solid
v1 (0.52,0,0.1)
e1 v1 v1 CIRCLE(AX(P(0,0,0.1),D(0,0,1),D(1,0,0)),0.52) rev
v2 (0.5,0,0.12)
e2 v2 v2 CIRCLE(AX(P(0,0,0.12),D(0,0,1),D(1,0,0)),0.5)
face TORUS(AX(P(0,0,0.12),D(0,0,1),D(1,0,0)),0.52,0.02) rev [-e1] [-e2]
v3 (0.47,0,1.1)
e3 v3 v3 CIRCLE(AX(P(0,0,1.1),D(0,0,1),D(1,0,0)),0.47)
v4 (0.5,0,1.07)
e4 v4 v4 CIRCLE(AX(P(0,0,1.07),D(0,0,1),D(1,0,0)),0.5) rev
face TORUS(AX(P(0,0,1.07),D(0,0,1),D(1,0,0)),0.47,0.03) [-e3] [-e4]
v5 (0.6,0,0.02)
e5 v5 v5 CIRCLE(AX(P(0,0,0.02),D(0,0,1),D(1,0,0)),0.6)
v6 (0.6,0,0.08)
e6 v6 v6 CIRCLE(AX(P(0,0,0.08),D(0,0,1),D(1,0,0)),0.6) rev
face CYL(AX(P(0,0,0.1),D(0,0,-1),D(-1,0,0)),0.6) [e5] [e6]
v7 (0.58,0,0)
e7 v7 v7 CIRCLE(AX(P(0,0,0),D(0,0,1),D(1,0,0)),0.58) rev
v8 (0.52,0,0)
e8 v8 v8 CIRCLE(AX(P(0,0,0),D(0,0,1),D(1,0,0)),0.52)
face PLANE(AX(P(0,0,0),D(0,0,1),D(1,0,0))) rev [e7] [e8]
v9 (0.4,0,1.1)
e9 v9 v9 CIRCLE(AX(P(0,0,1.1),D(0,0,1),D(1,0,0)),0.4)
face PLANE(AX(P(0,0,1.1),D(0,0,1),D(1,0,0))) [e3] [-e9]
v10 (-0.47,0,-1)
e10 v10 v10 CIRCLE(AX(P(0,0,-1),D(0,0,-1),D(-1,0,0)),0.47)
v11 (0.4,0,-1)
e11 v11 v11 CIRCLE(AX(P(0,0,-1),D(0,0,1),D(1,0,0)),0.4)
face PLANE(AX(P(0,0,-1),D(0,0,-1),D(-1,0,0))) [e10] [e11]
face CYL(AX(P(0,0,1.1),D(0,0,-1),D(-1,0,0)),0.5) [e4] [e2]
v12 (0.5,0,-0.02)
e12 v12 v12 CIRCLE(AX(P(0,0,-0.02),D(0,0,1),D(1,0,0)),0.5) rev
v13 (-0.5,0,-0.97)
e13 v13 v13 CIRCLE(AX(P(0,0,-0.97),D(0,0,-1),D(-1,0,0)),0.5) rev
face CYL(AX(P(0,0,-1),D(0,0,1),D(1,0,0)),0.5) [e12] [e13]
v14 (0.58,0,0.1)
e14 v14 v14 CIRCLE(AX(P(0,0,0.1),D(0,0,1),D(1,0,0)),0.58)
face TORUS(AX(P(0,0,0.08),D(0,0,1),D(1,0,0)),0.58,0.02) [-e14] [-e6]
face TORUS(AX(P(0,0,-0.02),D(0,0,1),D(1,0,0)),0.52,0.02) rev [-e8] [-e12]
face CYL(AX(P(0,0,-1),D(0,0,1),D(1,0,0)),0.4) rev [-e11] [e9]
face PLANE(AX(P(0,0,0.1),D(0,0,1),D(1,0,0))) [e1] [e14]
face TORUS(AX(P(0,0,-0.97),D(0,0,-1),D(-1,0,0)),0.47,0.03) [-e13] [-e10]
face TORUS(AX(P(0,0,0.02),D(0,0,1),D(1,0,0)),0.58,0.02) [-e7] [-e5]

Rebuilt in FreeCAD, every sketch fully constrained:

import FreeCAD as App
import Part
import Sketcher


def edges_at(feature, points):
    """Names of the edges that pass closest to the given points."""
    edges = feature.Shape.Edges
    near = lambda p: min(range(len(edges)), key=lambda i: edges[i].distToShape(Part.Vertex(*p))[0])
    return sorted({f"Edge{near(p) + 1}" for p in points})

doc = App.newDocument("Part")
body = doc.addObject("PartDesign::Body", "Body")

sketch1 = body.newObject("Sketcher::SketchObject", "Sketch")
sketch1.AttachmentSupport = (doc.getObject("XY_Plane"), [""])
sketch1.MapMode = "FlatFace"
sketch1.addGeometry(Part.Circle(App.Vector(0, 0, 0), App.Vector(0, 0, 1), 0.6), False)
sketch1.addConstraint([
    Sketcher.Constraint("Coincident", 0, 3, -1, 1),
    Sketcher.Constraint("Diameter", 0, 1.2),
])
pad1 = body.newObject("PartDesign::Pad", "Pad")
pad1.Profile = sketch1
pad1.Length = 0.1

sketch2 = body.newObject("Sketcher::SketchObject", "Sketch001")
sketch2.AttachmentSupport = (doc.getObject("XY_Plane"), [""])
sketch2.MapMode = "FlatFace"
sketch2.AttachmentOffset = App.Placement(App.Vector(0, 0, 0.1), App.Rotation())
sketch2.addGeometry(Part.Circle(App.Vector(0, 0, 0), App.Vector(0, 0, 1), 0.5), False)
sketch2.addConstraint([
    Sketcher.Constraint("Coincident", 0, 3, -1, 1),
    Sketcher.Constraint("Diameter", 0, 1.0),
])
pad2 = body.newObject("PartDesign::Pad", "Pad001")
pad2.Profile = sketch2
pad2.Length = 1

sketch3 = body.newObject("Sketcher::SketchObject", "Sketch002")
sketch3.AttachmentSupport = (doc.getObject("XY_Plane"), [""])
sketch3.MapMode = "FlatFace"
sketch3.AttachmentOffset = App.Placement(App.Vector(0, 0, -1), App.Rotation())
sketch3.addGeometry(Part.Circle(App.Vector(0, 0, 0), App.Vector(0, 0, 1), 0.5), False)
sketch3.addConstraint([
    Sketcher.Constraint("Coincident", 0, 3, -1, 1),
    Sketcher.Constraint("Diameter", 0, 1.0),
])
pad3 = body.newObject("PartDesign::Pad", "Pad002")
pad3.Profile = sketch3
pad3.Length = 1
doc.recompute()

fillet = body.newObject("PartDesign::Fillet", "Fillet")
fillet.Base = (pad3, edges_at(pad3, [(-0.6, 0, 0)]))
fillet.Radius = 0.02
doc.recompute()

fillet2 = body.newObject("PartDesign::Fillet", "Fillet001")
fillet2.Base = (fillet, edges_at(fillet, [(-0.6, 0, 0.1)]))
fillet2.Radius = 0.02
doc.recompute()

fillet3 = body.newObject("PartDesign::Fillet", "Fillet002")
fillet3.Base = (fillet2, edges_at(fillet2, [(-0.5, 0, 0.1)]))
fillet3.Radius = 0.02
doc.recompute()

fillet4 = body.newObject("PartDesign::Fillet", "Fillet003")
fillet4.Base = (fillet3, edges_at(fillet3, [(-0.5, 0, 0)]))
fillet4.Radius = 0.02
doc.recompute()

fillet5 = body.newObject("PartDesign::Fillet", "Fillet004")
fillet5.Base = (fillet4, edges_at(fillet4, [(-0.5, 0, 1.1)]))
fillet5.Radius = 0.03
doc.recompute()

fillet6 = body.newObject("PartDesign::Fillet", "Fillet005")
fillet6.Base = (fillet5, edges_at(fillet5, [(-0.5, 0, -1)]))
fillet6.Radius = 0.03

sketch4 = body.newObject("Sketcher::SketchObject", "Sketch003")
sketch4.AttachmentSupport = (doc.getObject("XY_Plane"), [""])
sketch4.MapMode = "FlatFace"
sketch4.AttachmentOffset = App.Placement(App.Vector(0, 0, 1.1), App.Rotation())
sketch4.addGeometry(Part.Circle(App.Vector(0, 0, 0), App.Vector(0, 0, 1), 0.4), False)
sketch4.addConstraint([
    Sketcher.Constraint("Coincident", 0, 3, -1, 1),
    Sketcher.Constraint("Diameter", 0, 0.8),
])
pocket1 = body.newObject("PartDesign::Pocket", "Pocket")
pocket1.Profile = sketch4
pocket1.Length = 2.1

doc.recompute()
